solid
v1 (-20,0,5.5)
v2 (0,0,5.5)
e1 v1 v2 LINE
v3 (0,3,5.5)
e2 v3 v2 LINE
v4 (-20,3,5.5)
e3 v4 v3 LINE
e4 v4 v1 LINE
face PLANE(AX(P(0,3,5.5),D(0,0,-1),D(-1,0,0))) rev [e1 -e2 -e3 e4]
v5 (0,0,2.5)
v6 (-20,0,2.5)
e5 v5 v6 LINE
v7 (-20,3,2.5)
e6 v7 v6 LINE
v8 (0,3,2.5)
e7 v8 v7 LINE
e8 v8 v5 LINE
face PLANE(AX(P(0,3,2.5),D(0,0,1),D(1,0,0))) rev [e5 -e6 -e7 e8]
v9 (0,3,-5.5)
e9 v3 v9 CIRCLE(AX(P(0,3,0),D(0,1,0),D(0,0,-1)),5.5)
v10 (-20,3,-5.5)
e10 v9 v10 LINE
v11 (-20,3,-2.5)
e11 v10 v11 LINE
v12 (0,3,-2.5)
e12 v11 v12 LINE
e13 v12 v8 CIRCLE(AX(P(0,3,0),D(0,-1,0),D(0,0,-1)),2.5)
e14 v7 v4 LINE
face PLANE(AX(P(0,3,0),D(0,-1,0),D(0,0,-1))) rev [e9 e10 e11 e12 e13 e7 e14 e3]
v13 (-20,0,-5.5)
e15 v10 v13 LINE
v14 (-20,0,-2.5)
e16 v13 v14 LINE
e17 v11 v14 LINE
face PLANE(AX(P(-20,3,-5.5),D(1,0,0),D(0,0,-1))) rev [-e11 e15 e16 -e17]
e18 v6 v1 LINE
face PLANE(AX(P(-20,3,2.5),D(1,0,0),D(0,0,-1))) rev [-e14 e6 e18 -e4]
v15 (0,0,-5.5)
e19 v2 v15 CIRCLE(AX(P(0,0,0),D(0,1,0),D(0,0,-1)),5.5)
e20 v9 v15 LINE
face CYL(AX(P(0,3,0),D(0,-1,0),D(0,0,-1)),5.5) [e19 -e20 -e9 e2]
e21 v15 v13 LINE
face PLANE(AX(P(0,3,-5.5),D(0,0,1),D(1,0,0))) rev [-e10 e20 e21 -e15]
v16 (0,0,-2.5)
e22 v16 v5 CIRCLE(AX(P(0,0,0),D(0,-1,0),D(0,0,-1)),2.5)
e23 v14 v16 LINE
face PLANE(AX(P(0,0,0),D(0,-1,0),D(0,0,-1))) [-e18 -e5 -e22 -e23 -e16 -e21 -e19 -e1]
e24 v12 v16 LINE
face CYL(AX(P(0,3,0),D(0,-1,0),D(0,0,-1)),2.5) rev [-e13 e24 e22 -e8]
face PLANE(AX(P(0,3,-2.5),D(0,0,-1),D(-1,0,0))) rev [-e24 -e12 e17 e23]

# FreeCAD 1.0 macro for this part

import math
import FreeCAD as App
import Part
import Sketcher
from FreeCAD import Vector

doc = App.newDocument("Part")
body = doc.addObject("PartDesign::Body", "Body")

sketch1 = body.newObject("Sketcher::SketchObject", "Sketch")
sketch1.AttachmentSupport = (doc.getObject("XZ_Plane"), [""])
sketch1.MapMode = "FlatFace"
sketch1.addGeometry([
    Part.LineSegment(Vector(-20, -2.5, 0), Vector(0, -2.5, 0)),
    Part.ArcOfCircle(Part.Circle(Vector(0, 0, 0), Vector(0, 0, 1), 2.5), math.radians(-90), math.radians(90)),
    Part.LineSegment(Vector(0, 2.5, 0), Vector(-20, 2.5, 0)),
    Part.LineSegment(Vector(-20, 2.5, 0), Vector(-20, 5.5, 0)),
    Part.LineSegment(Vector(-20, 5.5, 0), Vector(0, 5.5, 0)),
    Part.ArcOfCircle(Part.Circle(Vector(0, 0, 0), Vector(0, 0, 1), 5.5), math.radians(-90), math.radians(90)),
    Part.LineSegment(Vector(0, -5.5, 0), Vector(-20, -5.5, 0)),
    Part.LineSegment(Vector(-20, -5.5, 0), Vector(-20, -2.5, 0)),
], False)
sketch1.addConstraint([
    Sketcher.Constraint("Tangent", 0, 2, 1, 1),
    Sketcher.Constraint("Tangent", 1, 2, 2, 1),
    Sketcher.Constraint("Coincident", 2, 2, 3, 1),
    Sketcher.Constraint("Coincident", 3, 2, 4, 1),
    Sketcher.Constraint("Tangent", 4, 2, 5, 2),
    Sketcher.Constraint("Tangent", 5, 1, 6, 1),
    Sketcher.Constraint("Coincident", 6, 2, 7, 1),
    Sketcher.Constraint("Coincident", 7, 2, 0, 1),
    Sketcher.Constraint("Horizontal", 0),
    Sketcher.Constraint("Horizontal", 2),
    Sketcher.Constraint("Vertical", 3),
    Sketcher.Constraint("Horizontal", 4),
    Sketcher.Constraint("Horizontal", 6),
    Sketcher.Constraint("Vertical", 7),
    Sketcher.Constraint("Coincident", 1, 3, -1, 1),
    Sketcher.Constraint("Coincident", 5, 3, -1, 1),
    Sketcher.Constraint("Vertical", 3, 2, 6, 2),
    Sketcher.Constraint("Radius", 1, 2.5),
    Sketcher.Constraint("Radius", 5, 5.5),
    Sketcher.Constraint("DistanceX", 0, 1, 0, 2, 20.0),
])
pad1 = body.newObject("PartDesign::Pad", "Pad")
pad1.Profile = sketch1
pad1.Length = 3
pad1.Reversed = True

doc.recompute()
